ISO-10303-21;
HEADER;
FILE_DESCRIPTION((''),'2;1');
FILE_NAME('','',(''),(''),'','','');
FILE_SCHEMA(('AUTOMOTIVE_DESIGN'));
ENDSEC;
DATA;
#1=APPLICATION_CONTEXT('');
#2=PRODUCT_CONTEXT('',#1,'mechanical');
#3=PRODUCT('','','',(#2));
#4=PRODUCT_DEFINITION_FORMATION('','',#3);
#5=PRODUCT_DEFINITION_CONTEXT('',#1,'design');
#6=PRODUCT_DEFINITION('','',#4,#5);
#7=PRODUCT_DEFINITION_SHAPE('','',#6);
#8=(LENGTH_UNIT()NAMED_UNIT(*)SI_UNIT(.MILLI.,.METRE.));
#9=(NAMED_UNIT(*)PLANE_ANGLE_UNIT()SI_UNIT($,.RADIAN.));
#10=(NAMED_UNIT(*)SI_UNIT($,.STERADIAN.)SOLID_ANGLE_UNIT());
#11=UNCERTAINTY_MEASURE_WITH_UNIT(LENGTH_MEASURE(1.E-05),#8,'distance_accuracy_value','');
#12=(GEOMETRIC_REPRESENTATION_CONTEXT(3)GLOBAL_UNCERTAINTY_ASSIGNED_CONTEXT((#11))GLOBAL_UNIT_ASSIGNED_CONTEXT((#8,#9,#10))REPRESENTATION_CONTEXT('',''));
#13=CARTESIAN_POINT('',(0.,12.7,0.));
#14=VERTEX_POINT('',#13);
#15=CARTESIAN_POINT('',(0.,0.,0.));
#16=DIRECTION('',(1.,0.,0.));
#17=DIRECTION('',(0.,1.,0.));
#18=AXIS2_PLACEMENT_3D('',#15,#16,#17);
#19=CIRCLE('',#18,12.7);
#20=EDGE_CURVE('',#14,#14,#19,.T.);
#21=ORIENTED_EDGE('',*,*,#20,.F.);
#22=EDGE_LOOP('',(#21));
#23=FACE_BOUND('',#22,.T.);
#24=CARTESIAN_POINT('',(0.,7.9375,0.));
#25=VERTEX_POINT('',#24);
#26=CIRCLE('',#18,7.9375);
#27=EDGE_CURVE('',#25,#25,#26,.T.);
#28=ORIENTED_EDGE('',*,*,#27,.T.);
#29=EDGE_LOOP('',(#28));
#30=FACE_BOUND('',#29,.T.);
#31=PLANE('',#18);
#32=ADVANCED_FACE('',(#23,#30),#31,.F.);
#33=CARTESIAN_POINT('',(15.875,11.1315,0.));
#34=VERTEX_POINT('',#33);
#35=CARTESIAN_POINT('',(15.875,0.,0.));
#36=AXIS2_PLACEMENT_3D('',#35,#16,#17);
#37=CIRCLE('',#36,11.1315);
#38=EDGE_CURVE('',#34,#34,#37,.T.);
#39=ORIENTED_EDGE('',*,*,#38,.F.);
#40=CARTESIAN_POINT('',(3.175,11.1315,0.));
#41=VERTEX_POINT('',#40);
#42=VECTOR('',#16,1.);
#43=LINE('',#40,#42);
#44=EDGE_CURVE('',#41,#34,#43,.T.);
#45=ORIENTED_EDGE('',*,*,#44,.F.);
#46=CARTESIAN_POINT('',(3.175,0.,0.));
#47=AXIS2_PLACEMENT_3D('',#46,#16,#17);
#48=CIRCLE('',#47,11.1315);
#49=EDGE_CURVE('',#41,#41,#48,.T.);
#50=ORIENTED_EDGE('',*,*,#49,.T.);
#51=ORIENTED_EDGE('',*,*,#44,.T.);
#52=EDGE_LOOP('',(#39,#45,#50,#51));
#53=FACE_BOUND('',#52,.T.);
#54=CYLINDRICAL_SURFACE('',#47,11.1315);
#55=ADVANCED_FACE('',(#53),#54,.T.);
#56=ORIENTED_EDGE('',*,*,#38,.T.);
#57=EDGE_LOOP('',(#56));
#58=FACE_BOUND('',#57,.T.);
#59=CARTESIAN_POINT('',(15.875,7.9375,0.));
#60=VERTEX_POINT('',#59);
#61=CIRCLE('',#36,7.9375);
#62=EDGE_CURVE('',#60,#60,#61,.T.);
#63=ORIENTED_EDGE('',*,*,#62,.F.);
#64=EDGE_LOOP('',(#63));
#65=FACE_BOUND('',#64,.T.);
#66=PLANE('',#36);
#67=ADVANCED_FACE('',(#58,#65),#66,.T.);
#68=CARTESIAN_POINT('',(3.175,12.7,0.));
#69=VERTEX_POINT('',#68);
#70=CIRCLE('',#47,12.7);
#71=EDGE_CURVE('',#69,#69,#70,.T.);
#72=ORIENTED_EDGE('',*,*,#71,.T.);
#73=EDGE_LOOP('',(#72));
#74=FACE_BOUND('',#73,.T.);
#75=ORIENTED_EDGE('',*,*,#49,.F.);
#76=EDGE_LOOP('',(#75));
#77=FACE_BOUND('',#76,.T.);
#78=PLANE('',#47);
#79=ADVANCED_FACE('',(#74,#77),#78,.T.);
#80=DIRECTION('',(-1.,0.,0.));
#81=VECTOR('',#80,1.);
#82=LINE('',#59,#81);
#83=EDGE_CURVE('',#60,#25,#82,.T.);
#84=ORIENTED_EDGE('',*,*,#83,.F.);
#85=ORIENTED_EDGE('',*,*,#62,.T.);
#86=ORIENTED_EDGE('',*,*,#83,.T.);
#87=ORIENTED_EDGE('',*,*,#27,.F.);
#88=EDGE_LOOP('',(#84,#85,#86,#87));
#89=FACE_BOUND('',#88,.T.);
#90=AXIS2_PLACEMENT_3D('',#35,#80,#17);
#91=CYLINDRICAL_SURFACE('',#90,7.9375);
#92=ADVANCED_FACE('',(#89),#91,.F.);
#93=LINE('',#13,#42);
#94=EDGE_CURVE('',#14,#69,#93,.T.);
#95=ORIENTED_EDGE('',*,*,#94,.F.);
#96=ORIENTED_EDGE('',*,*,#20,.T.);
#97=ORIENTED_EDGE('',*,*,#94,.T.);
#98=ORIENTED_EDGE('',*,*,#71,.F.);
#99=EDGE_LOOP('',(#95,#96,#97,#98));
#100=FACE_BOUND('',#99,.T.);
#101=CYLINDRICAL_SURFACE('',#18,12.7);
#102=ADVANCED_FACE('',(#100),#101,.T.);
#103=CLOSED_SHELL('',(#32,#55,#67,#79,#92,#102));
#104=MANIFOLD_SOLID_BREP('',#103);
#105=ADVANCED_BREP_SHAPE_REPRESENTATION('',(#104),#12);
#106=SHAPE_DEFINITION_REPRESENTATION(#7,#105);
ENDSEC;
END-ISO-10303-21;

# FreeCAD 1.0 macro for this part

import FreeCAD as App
import Part
import Sketcher
from FreeCAD import Vector
Q = App.Units.Quantity


def add_polygon(sketch, points):
    """Adds a closed chain of lines whose ends are joined by coincident constraints."""
    first, n = sketch.GeometryCount, len(points)
    for a, b in zip(points, points[1:] + points[:1]):
        sketch.addGeometry(Part.LineSegment(App.Vector(*a, 0), App.Vector(*b, 0)), False)
    for i in range(n):
        sketch.addConstraint(Sketcher.Constraint("Coincident", first + i, 2, first + (i + 1) % n, 1))

doc = App.newDocument("Part")
body = doc.addObject("PartDesign::Body", "Body")

# Sketch on XY plane
sketch1 = body.newObject("Sketcher::SketchObject", "Sketch")
sketch1.AttachmentSupport = (doc.getObject("XY_Plane"), [""])
sketch1.MapMode = "FlatFace"
add_polygon(sketch1, [(3.175, 12.7), (0, 12.7), (0, 7.9375), (15.875, 7.9375), (15.875, 11.1315), (3.175, 11.1315)])  # lines 0-5
sketch1.addConstraint(Sketcher.Constraint("Horizontal", 0))
sketch1.addConstraint(Sketcher.Constraint("Vertical", 1))
sketch1.addConstraint(Sketcher.Constraint("Horizontal", 2))
sketch1.addConstraint(Sketcher.Constraint("Vertical", 3))
sketch1.addConstraint(Sketcher.Constraint("Horizontal", 4))
sketch1.addConstraint(Sketcher.Constraint("Vertical", 5))
sketch1.addConstraint(Sketcher.Constraint("PointOnObject", 0, 2, -2))
sketch1.addConstraint(Sketcher.Constraint("DistanceX", 0, 2, 0, 1, Q("0.125 in")))
sketch1.addConstraint(Sketcher.Constraint("DistanceX", 2, 1, 2, 2, Q("0.625 in")))
sketch1.addConstraint(Sketcher.Constraint("DistanceY", -1, 1, 0, 2, Q("0.5 in")))
sketch1.addConstraint(Sketcher.Constraint("DistanceY", 1, 2, 1, 1, Q("0.1875 in")))
sketch1.addConstraint(Sketcher.Constraint("DistanceY", 3, 1, 3, 2, 3.194))
revolution = body.newObject("PartDesign::Revolution", "Revolution")
revolution.Profile = sketch1
revolution.ReferenceAxis = (sketch1, ["H_Axis"])
revolution.Angle = 360

doc.recompute()
